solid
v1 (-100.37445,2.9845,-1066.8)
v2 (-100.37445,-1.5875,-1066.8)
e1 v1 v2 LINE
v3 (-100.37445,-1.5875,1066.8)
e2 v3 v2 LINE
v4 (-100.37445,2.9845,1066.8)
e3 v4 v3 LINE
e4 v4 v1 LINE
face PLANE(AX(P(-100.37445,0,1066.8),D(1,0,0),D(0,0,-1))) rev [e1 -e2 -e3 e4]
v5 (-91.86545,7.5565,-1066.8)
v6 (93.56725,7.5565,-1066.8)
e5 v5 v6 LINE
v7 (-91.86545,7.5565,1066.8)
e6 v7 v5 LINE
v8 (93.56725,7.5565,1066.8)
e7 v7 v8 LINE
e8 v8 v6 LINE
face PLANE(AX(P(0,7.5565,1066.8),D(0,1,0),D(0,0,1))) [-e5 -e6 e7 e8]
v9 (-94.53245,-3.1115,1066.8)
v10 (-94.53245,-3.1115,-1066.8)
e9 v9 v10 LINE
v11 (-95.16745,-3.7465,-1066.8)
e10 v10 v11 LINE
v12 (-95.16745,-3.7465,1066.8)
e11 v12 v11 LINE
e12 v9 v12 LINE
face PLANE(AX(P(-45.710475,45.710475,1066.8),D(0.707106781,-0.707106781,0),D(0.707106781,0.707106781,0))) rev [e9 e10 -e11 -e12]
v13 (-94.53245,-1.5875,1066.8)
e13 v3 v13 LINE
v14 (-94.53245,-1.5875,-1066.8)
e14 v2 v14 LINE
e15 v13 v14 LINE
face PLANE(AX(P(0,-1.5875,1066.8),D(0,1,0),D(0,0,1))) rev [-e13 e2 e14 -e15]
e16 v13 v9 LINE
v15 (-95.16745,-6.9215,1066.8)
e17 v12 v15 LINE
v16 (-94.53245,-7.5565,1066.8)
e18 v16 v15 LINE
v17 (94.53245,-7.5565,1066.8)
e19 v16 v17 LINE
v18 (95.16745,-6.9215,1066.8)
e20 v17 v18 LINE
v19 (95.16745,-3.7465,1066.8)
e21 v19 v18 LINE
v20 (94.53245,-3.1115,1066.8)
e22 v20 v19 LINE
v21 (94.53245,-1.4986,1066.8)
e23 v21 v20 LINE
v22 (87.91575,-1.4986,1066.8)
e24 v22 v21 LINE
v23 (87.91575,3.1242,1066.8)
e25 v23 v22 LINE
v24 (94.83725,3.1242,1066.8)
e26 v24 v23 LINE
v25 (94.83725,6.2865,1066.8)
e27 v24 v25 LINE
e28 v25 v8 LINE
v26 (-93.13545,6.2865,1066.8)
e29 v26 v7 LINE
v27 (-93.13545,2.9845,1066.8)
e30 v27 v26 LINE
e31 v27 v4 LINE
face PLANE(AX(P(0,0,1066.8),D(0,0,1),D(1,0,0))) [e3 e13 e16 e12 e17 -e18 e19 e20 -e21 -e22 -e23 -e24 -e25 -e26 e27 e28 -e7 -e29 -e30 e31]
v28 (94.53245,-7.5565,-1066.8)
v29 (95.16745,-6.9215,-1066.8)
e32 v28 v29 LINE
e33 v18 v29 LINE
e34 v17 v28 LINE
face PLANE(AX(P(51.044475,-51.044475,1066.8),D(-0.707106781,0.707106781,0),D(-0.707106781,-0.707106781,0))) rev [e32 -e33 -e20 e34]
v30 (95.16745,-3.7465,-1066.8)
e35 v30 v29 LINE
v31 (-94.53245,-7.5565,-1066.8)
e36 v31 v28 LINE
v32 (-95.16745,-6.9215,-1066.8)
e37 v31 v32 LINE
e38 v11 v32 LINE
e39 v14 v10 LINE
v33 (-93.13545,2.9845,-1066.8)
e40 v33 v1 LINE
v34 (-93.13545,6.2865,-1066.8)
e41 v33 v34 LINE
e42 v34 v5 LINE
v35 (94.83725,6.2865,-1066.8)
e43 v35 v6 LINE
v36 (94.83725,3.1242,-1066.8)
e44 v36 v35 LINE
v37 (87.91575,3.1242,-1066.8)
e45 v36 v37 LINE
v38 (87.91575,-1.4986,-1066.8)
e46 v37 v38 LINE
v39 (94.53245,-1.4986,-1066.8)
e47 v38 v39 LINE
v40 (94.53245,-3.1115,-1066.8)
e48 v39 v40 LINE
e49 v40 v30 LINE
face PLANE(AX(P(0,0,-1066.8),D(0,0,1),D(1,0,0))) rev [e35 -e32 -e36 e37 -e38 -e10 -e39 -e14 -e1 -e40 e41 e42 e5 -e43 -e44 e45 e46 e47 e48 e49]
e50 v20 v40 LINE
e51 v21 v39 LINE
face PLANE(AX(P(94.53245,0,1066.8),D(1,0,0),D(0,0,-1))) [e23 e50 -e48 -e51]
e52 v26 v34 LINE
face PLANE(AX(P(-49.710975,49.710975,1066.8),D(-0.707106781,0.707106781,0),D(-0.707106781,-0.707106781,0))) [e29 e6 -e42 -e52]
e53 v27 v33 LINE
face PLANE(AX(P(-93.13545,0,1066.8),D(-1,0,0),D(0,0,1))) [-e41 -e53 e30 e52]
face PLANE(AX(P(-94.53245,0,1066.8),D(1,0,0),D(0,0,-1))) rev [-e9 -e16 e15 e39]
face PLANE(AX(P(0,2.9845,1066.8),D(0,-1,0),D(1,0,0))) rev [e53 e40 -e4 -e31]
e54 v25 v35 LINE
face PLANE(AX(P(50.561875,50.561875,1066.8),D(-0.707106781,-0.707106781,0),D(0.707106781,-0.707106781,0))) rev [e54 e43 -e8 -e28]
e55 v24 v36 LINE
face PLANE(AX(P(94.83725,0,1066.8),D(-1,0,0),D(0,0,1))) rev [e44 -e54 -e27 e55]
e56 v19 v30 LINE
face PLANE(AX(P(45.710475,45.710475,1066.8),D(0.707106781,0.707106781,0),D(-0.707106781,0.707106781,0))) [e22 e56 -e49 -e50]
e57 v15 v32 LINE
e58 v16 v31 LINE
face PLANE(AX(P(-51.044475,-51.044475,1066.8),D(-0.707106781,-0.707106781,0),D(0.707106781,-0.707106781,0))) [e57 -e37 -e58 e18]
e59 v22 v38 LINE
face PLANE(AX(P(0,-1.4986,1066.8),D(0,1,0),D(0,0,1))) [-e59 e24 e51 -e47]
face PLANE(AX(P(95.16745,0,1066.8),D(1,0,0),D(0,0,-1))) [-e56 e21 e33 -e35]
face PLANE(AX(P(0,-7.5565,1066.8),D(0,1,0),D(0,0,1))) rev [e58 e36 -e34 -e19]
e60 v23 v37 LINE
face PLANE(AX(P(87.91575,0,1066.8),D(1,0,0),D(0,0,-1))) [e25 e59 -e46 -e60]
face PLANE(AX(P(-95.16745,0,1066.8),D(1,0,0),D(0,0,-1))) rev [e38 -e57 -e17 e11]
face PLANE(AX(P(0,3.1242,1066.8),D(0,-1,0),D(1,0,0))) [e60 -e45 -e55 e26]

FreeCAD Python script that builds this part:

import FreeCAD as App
import Part
import Sketcher
Q = App.Units.Quantity


def add_polygon(sketch, points):
    """Adds a closed chain of lines whose ends are joined by coincident constraints."""
    first, n = sketch.GeometryCount, len(points)
    for a, b in zip(points, points[1:] + points[:1]):
        sketch.addGeometry(Part.LineSegment(App.Vector(*a, 0), App.Vector(*b, 0)), False)
    for i in range(n):
        sketch.addConstraint(Sketcher.Constraint("Coincident", first + i, 2, first + (i + 1) % n, 1))

doc = App.newDocument("Part")
body = doc.addObject("PartDesign::Body", "Body")

sketch1 = doc.addObject("Sketcher::SketchObject", "Sketch")
body.addObject(sketch1)
sketch1.AttachmentSupport = (doc.XY_Plane, [""])
sketch1.MapMode = "FlatFace"
add_polygon(sketch1, [(-93.1, 6.3), (-93.1, 3), (-100.4, 3), (-100.4, -1.6), (-94.5, -1.6), (-94.5, -3.1), (-95.2, -3.7), (-95.2, -6.9), (-94.5, -7.6), (94.5, -7.6), (95.2, -6.9), (95.2, -3.7), (94.5, -3.1), (94.5, -1.5), (87.9, -1.5), (87.9, 3.1), (94.8, 3.1), (94.8, 6.3), (93.6, 7.6), (-91.9, 7.6)])
sketch1.addConstraint([
    Sketcher.Constraint("Vertical", 0),
    Sketcher.Constraint("Horizontal", 1),
    Sketcher.Constraint("Vertical", 2),
    Sketcher.Constraint("Horizontal", 3),
    Sketcher.Constraint("Vertical", 4),
    Sketcher.Constraint("Vertical", 6),
    Sketcher.Constraint("Horizontal", 8),
    Sketcher.Constraint("Vertical", 10),
    Sketcher.Constraint("Vertical", 12),
    Sketcher.Constraint("Horizontal", 13),
    Sketcher.Constraint("Vertical", 14),
    Sketcher.Constraint("Horizontal", 15),
    Sketcher.Constraint("Vertical", 16),
    Sketcher.Constraint("Horizontal", 18),
    Sketcher.Constraint("Symmetric", 6, 2, 9, 2, -2),
    Sketcher.Constraint("Symmetric", 4, 2, 11, 2, -2),
    Sketcher.Constraint("Perpendicular", 5, 7),
    Sketcher.Constraint("Perpendicular", 7, 9),
    Sketcher.Constraint("Perpendicular", 9, 11),
    Sketcher.Constraint("Parallel", 11, 17),
    Sketcher.Constraint("Perpendicular", 17, 19),
    Sketcher.Constraint("Horizontal", 5, 2, 10, 2),
    Sketcher.Constraint("Horizontal", 16, 2, 19, 2),
    Sketcher.Constraint("Vertical", 4, 2, 7, 2),
    Sketcher.Constraint("DistanceX", 3, 1, 3, 2, Q("0.23 in")),
    Sketcher.Constraint("DistanceY", 0, 2, 0, 1, Q("0.13 in")),
    Sketcher.Constraint("DistanceY", 2, 2, 2, 1, Q("0.18 in")),
    Sketcher.Constraint("DistanceY", 4, 2, 4, 1, Q("0.06 in")),
    Sketcher.Constraint("DistanceX", 1, 2, 1, 1, Q("0.285 in")),
    Sketcher.Constraint("DistanceY", 6, 2, 6, 1, Q("0.125 in")),
    Sketcher.Constraint("DistanceY", 14, 1, 14, 2, Q("0.182 in")),
    Sketcher.Constraint("DistanceX", 5, 2, 0, 2, Q("0.08 in")),
    Sketcher.Constraint("DistanceX", 17, 2, 16, 2, Q("0.05 in")),
    Sketcher.Constraint("DistanceX", 8, 1, 8, 2, Q("7.4435 in")),
    Sketcher.Constraint("DistanceX", 13, 2, 13, 1, Q("0.2605 in")),
    Sketcher.Constraint("DistanceX", 15, 1, 15, 2, Q("0.2725 in")),
    Sketcher.Constraint("DistanceY", 12, 1, 12, 2, Q("0.0635 in")),
    Sketcher.Constraint("DistanceY", 2, 2, -1, 1, Q("0.0625 in")),
])
pad1 = doc.addObject("PartDesign::Pad", "Pad")
body.addObject(pad1)
pad1.Profile = sketch1
pad1.Length = Q("84 in")
pad1.Midplane = True

doc.recompute()
